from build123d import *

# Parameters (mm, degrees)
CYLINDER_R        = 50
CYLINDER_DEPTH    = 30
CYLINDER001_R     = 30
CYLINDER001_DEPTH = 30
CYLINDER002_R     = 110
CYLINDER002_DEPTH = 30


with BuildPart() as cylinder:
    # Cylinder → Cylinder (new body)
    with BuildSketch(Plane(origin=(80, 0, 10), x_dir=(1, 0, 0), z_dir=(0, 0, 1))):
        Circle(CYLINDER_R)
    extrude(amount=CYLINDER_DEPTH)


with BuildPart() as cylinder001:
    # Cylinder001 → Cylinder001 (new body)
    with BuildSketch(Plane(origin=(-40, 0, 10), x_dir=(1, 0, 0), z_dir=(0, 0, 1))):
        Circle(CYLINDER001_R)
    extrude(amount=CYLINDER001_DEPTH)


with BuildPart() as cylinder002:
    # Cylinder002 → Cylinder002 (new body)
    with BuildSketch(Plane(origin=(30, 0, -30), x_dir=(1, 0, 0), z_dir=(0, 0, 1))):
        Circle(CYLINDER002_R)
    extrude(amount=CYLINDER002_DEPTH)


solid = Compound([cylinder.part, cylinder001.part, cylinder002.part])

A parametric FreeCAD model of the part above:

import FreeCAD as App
import Part
import Sketcher
from FreeCAD import Vector

doc = App.newDocument("Part")
body = doc.addObject("PartDesign::Body", "Body")

# Sketch on XY plane
sketch1 = body.newObject("Sketcher::SketchObject", "Sketch")
sketch1.AttachmentSupport = (doc.getObject("XY_Plane"), [""])
sketch1.MapMode = "FlatFace"
sketch1.AttachmentOffset = App.Placement(Vector(0, 0, 10), App.Rotation())
sketch1.addGeometry(Part.Circle(Vector(80, 0, 0), Vector(0, 0, 1), 50), False)
sketch1.addConstraint(Sketcher.Constraint("PointOnObject", 0, 3, -1))
sketch1.addConstraint(Sketcher.Constraint("Diameter", 0, 100.0))
sketch1.addConstraint(Sketcher.Constraint("DistanceX", -1, 1, 0, 3, 80.0))
pad1 = body.newObject("PartDesign::Pad", "Pad")
pad1.Profile = sketch1
pad1.Length = 30
body2 = doc.addObject("PartDesign::Body", "Body001")

# Sketch on XY plane
sketch2 = body2.newObject("Sketcher::SketchObject", "Sketch001")
sketch2.AttachmentSupport = (doc.getObject("XY_Plane001"), [""])
sketch2.MapMode = "FlatFace"
sketch2.AttachmentOffset = App.Placement(Vector(0, 0, 10), App.Rotation())
sketch2.addGeometry(Part.Circle(Vector(-40, 0, 0), Vector(0, 0, 1), 30), False)
sketch2.addConstraint(Sketcher.Constraint("PointOnObject", 0, 3, -1))
sketch2.addConstraint(Sketcher.Constraint("Diameter", 0, 60.0))
sketch2.addConstraint(Sketcher.Constraint("DistanceX", 0, 3, -1, 1, 40.0))
pad2 = body2.newObject("PartDesign::Pad", "Pad001")
pad2.Profile = sketch2
pad2.Length = 30
body3 = doc.addObject("PartDesign::Body", "Body002")

# Sketch on XY plane
sketch3 = body3.newObject("Sketcher::SketchObject", "Sketch002")
sketch3.AttachmentSupport = (doc.getObject("XY_Plane002"), [""])
sketch3.MapMode = "FlatFace"
sketch3.AttachmentOffset = App.Placement(Vector(0, 0, -30), App.Rotation())
sketch3.addGeometry(Part.Circle(Vector(30, 0, 0), Vector(0, 0, 1), 110), False)
sketch3.addConstraint(Sketcher.Constraint("PointOnObject", 0, 3, -1))
sketch3.addConstraint(Sketcher.Constraint("Diameter", 0, 220.0))
sketch3.addConstraint(Sketcher.Constraint("DistanceX", -1, 1, 0, 3, 30.0))
pad3 = body3.newObject("PartDesign::Pad", "Pad002")
pad3.Profile = sketch3
pad3.Length = 30

doc.recompute()
